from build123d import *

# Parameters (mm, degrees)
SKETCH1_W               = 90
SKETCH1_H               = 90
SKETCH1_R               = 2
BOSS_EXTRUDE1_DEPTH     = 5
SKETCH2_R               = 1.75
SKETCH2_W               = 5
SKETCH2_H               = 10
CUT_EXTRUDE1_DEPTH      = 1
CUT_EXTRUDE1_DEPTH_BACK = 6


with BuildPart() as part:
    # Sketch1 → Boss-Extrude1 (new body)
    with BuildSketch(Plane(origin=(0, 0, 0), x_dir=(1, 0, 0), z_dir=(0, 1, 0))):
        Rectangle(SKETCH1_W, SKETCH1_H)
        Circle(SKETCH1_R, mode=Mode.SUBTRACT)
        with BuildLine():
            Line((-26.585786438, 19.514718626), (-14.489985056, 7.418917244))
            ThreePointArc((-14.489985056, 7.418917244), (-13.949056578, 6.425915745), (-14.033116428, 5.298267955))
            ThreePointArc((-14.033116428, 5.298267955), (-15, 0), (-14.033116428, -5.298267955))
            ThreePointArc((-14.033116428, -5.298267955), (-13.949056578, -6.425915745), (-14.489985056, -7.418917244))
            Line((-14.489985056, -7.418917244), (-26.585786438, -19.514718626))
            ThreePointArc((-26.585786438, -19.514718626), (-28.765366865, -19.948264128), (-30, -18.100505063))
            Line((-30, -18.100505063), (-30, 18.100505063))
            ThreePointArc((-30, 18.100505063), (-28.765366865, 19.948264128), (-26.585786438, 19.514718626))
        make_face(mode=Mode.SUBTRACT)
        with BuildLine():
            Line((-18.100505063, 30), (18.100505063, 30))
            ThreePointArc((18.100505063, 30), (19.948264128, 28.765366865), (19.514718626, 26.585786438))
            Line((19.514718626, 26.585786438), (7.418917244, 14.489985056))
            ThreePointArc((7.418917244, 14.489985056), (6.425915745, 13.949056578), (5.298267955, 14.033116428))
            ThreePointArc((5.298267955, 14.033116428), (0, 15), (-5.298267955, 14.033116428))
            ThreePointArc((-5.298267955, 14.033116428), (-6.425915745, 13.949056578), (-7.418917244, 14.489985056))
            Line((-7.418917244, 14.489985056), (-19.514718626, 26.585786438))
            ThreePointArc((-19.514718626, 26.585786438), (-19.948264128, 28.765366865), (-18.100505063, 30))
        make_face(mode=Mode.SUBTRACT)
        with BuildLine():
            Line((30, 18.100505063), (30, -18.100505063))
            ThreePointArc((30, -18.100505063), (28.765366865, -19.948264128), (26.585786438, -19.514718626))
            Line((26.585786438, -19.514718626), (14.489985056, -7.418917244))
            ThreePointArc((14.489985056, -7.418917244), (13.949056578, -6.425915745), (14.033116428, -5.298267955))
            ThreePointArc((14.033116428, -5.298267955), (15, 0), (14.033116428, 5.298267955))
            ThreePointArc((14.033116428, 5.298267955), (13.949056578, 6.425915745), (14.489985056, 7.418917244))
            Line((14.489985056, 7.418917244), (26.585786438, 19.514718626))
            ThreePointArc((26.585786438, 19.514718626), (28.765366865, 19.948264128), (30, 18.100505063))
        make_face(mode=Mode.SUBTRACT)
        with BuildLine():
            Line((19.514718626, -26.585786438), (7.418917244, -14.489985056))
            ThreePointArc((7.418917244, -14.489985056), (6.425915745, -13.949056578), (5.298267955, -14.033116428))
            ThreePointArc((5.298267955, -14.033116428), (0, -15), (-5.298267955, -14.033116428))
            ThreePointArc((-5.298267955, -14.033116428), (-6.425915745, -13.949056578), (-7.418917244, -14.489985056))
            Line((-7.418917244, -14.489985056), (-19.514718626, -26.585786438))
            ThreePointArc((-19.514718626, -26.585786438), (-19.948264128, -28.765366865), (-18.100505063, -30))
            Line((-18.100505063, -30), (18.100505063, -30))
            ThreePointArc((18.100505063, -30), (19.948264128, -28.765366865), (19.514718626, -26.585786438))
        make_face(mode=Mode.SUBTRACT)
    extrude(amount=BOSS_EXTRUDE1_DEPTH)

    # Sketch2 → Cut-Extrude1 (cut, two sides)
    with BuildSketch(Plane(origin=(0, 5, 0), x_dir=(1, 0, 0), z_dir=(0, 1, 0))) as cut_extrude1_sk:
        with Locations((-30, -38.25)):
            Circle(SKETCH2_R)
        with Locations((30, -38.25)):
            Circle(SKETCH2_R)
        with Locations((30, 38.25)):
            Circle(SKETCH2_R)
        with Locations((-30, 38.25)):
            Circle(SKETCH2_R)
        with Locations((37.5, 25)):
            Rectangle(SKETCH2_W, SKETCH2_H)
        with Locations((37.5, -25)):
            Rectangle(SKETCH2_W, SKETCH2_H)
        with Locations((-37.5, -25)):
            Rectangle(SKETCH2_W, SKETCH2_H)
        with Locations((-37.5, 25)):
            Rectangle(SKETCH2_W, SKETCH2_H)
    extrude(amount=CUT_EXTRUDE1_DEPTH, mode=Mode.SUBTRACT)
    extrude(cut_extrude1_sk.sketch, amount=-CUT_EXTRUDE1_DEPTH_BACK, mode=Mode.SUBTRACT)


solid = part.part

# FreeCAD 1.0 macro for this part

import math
import FreeCAD as App
import Part
import Sketcher

V = App.Vector

doc = App.newDocument("Part")
body = doc.addObject("PartDesign::Body", "Body")

# Sketch on XZ plane
sketch1 = body.newObject("Sketcher::SketchObject", "Sketch")
sketch1.AttachmentSupport = (doc.getObject("XZ_Plane"), [""])
sketch1.MapMode = "FlatFace"
sketch1.addGeometry([
    Part.LineSegment(V(-45, -45, 0), V(-45, 45, 0)),  # 0
    Part.LineSegment(V(-45, 45, 0), V(45, 45, 0)),  # 1
    Part.LineSegment(V(45, 45, 0), V(45, -45, 0)),  # 2
    Part.LineSegment(V(45, -45, 0), V(-45, -45, 0)),  # 3
    Part.LineSegment(V(7.418917, 14.489985, 0), V(19.514719, 26.585786, 0)),  # 4
    Part.ArcOfCircle(Part.Circle(V(18.100505, 28, 0), V(0, 0, 1), 2), math.radians(-45), math.radians(90)),  # 5
    Part.LineSegment(V(18.100505, 30, 0), V(-18.100505, 30, 0)),  # 6
    Part.ArcOfCircle(Part.Circle(V(-18.100505, 28, 0), V(0, 0, 1), 2), math.radians(90), math.radians(225)),  # 7
    Part.LineSegment(V(-19.514719, 26.585786, 0), V(-7.418917, 14.489985, 0)),  # 8
    Part.ArcOfCircle(Part.Circle(V(-6.004704, 15.904199, 0), V(0, 0, 1), 2), math.radians(-135), math.radians(-69.315739)),  # 9
    Part.ArcOfCircle(Part.Circle(V(0, 0, 0), V(0, 0, 1), 15), math.radians(69.315739), math.radians(110.684261)),  # 10
    Part.ArcOfCircle(Part.Circle(V(6.004704, 15.904199, 0), V(0, 0, 1), 2), math.radians(-110.684261), math.radians(-45)),  # 11
    Part.ArcOfCircle(Part.Circle(V(-28, -18.100505, 0), V(0, 0, 1), 2), math.radians(180), math.radians(315)),  # 12
    Part.LineSegment(V(-26.585786, -19.514719, 0), V(-14.489985, -7.418917, 0)),  # 13
    Part.ArcOfCircle(Part.Circle(V(-15.904199, -6.004704, 0), V(0, 0, 1), 2), math.radians(-45), math.radians(20.684261)),  # 14
    Part.ArcOfCircle(Part.Circle(V(0, 0, 0), V(0, 0, 1), 15), math.radians(159.315739), math.radians(200.684261)),  # 15
    Part.ArcOfCircle(Part.Circle(V(-15.904199, 6.004704, 0), V(0, 0, 1), 2), math.radians(-20.684261), math.radians(45)),  # 16
    Part.LineSegment(V(-14.489985, 7.418917, 0), V(-26.585786, 19.514719, 0)),  # 17
    Part.ArcOfCircle(Part.Circle(V(-28, 18.100505, 0), V(0, 0, 1), 2), math.radians(45), math.radians(180)),  # 18
    Part.LineSegment(V(-30, 18.100505, 0), V(-30, -18.100505, 0)),  # 19
    Part.Circle(V(0, 0, 0), V(0, 0, 1), 2),  # 20
    Part.ArcOfCircle(Part.Circle(V(28, -18.100505, 0), V(0, 0, 1), 2), math.radians(-135), math.radians(0)),  # 21
    Part.LineSegment(V(30, -18.100505, 0), V(30, 18.100505, 0)),  # 22
    Part.ArcOfCircle(Part.Circle(V(28, 18.100505, 0), V(0, 0, 1), 2), math.radians(0), math.radians(135)),  # 23
    Part.LineSegment(V(26.585786, 19.514719, 0), V(14.489985, 7.418917, 0)),  # 24
    Part.ArcOfCircle(Part.Circle(V(15.904199, 6.004704, 0), V(0, 0, 1), 2), math.radians(135), math.radians(200.684261)),  # 25
    Part.ArcOfCircle(Part.Circle(V(0, 0, 0), V(0, 0, 1), 15), math.radians(-20.684261), math.radians(20.684261)),  # 26
    Part.ArcOfCircle(Part.Circle(V(15.904199, -6.004704, 0), V(0, 0, 1), 2), math.radians(159.315739), math.radians(225)),  # 27
    Part.LineSegment(V(14.489985, -7.418917, 0), V(26.585786, -19.514719, 0)),  # 28
    Part.ArcOfCircle(Part.Circle(V(-18.100505, -28, 0), V(0, 0, 1), 2), math.radians(135), math.radians(270)),  # 29
    Part.LineSegment(V(-18.100505, -30, 0), V(18.100505, -30, 0)),  # 30
    Part.ArcOfCircle(Part.Circle(V(18.100505, -28, 0), V(0, 0, 1), 2), math.radians(-90), math.radians(45)),  # 31
    Part.LineSegment(V(19.514719, -26.585786, 0), V(7.418917, -14.489985, 0)),  # 32
    Part.ArcOfCircle(Part.Circle(V(6.004704, -15.904199, 0), V(0, 0, 1), 2), math.radians(45), math.radians(110.684261)),  # 33
    Part.ArcOfCircle(Part.Circle(V(0, 0, 0), V(0, 0, 1), 15), math.radians(-110.684261), math.radians(-69.315739)),  # 34
    Part.ArcOfCircle(Part.Circle(V(-6.004704, -15.904199, 0), V(0, 0, 1), 2), math.radians(69.315739), math.radians(135)),  # 35
    Part.LineSegment(V(-7.418917, -14.489985, 0), V(-19.514719, -26.585786, 0)),  # 36
], False)
sketch1.addConstraint([
    Sketcher.Constraint("Coincident", 0, 2, 1, 1),
    Sketcher.Constraint("Coincident", 1, 2, 2, 1),
    Sketcher.Constraint("Coincident", 2, 2, 3, 1),
    Sketcher.Constraint("Coincident", 3, 2, 0, 1),
    Sketcher.Constraint("Tangent", 4, 2, 5, 1),
    Sketcher.Constraint("Tangent", 5, 2, 6, 1),
    Sketcher.Constraint("Tangent", 6, 2, 7, 1),
    Sketcher.Constraint("Tangent", 7, 2, 8, 1),
    Sketcher.Constraint("Tangent", 8, 2, 9, 1),
    Sketcher.Constraint("Tangent", 9, 2, 10, 2),
    Sketcher.Constraint("Tangent", 10, 1, 11, 1),
    Sketcher.Constraint("Tangent", 11, 2, 4, 1),
    Sketcher.Constraint("Tangent", 12, 2, 13, 1),
    Sketcher.Constraint("Tangent", 13, 2, 14, 1),
    Sketcher.Constraint("Tangent", 14, 2, 15, 2),
    Sketcher.Constraint("Tangent", 15, 1, 16, 1),
    Sketcher.Constraint("Tangent", 16, 2, 17, 1),
    Sketcher.Constraint("Tangent", 17, 2, 18, 1),
    Sketcher.Constraint("Tangent", 18, 2, 19, 1),
    Sketcher.Constraint("Tangent", 19, 2, 12, 1),
    Sketcher.Constraint("Tangent", 21, 2, 22, 1),
    Sketcher.Constraint("Tangent", 22, 2, 23, 1),
    Sketcher.Constraint("Tangent", 23, 2, 24, 1),
    Sketcher.Constraint("Tangent", 24, 2, 25, 1),
    Sketcher.Constraint("Tangent", 25, 2, 26, 2),
    Sketcher.Constraint("Tangent", 26, 1, 27, 1),
    Sketcher.Constraint("Tangent", 27, 2, 28, 1),
    Sketcher.Constraint("Tangent", 28, 2, 21, 1),
    Sketcher.Constraint("Tangent", 29, 2, 30, 1),
    Sketcher.Constraint("Tangent", 30, 2, 31, 1),
    Sketcher.Constraint("Tangent", 31, 2, 32, 1),
    Sketcher.Constraint("Tangent", 32, 2, 33, 1),
    Sketcher.Constraint("Tangent", 33, 2, 34, 2),
    Sketcher.Constraint("Tangent", 34, 1, 35, 1),
    Sketcher.Constraint("Tangent", 35, 2, 36, 1),
    Sketcher.Constraint("Tangent", 36, 2, 29, 1),
    Sketcher.Constraint("Vertical", 0),
    Sketcher.Constraint("Horizontal", 1),
    Sketcher.Constraint("Vertical", 2),
    Sketcher.Constraint("Horizontal", 3),
    Sketcher.Constraint("Horizontal", 6),
    Sketcher.Constraint("Vertical", 19),
    Sketcher.Constraint("Vertical", 22),
    Sketcher.Constraint("Horizontal", 30),
    Sketcher.Constraint("Coincident", 10, 3, -1, 1),
    Sketcher.Constraint("Coincident", 15, 3, -1, 1),
    Sketcher.Constraint("Coincident", 20, 3, -1, 1),
    Sketcher.Constraint("Coincident", 26, 3, -1, 1),
    Sketcher.Constraint("Coincident", 34, 3, -1, 1),
    Sketcher.Constraint("Equal", 5, 7),
    Sketcher.Constraint("Equal", 7, 9),
    Sketcher.Constraint("Equal", 9, 11),
    Sketcher.Constraint("Equal", 11, 12),
    Sketcher.Constraint("Equal", 12, 14),
    Sketcher.Constraint("Equal", 10, 15),
    Sketcher.Constraint("Equal", 14, 16),
    Sketcher.Constraint("Equal", 16, 18),
    Sketcher.Constraint("Equal", 18, 20),
    Sketcher.Constraint("Equal", 20, 21),
    Sketcher.Constraint("Equal", 21, 23),
    Sketcher.Constraint("Equal", 23, 25),
    Sketcher.Constraint("Equal", 15, 26),
    Sketcher.Constraint("Equal", 25, 27),
    Sketcher.Constraint("Equal", 27, 29),
    Sketcher.Constraint("Equal", 29, 31),
    Sketcher.Constraint("Equal", 31, 33),
    Sketcher.Constraint("Equal", 26, 34),
    Sketcher.Constraint("Equal", 33, 35),
    Sketcher.Constraint("Symmetric", 18, 3, 21, 3, -1, 1),
    Sketcher.Constraint("Symmetric", 5, 3, 29, 3, -1, 1),
    Sketcher.Constraint("Symmetric", 0, 2, 2, 2, -1, 1),
    Sketcher.Constraint("Symmetric", 12, 2, 23, 2, -1, 1),
    Sketcher.Constraint("Symmetric", 7, 2, 31, 2, -1, 1),
    Sketcher.Constraint("Symmetric", 4, 2, 7, 2, -2),
    Sketcher.Constraint("Symmetric", 17, 2, 23, 2, -2),
    Sketcher.Constraint("Perpendicular", 4, 8),
    Sketcher.Constraint("Perpendicular", 8, 13),
    Sketcher.Constraint("Perpendicular", 24, 28),
    Sketcher.Constraint("Perpendicular", 32, 36),
    Sketcher.Constraint("Equal", 3, 0),
    Sketcher.Constraint("Equal", 30, 19),
    Sketcher.Constraint("Equal", 8, 13),
    Sketcher.Constraint("Diameter", 20, 4.0),
    Sketcher.Constraint("Radius", 10, 15.0),
    Sketcher.Constraint("DistanceX", 1, 1, 1, 2, 90.0),
    Sketcher.Constraint("DistanceY", -1, 1, 5, 3, 28.0),
    Sketcher.Constraint("DistanceX", 6, 2, 6, 1, 36.20101),
])
pad1 = body.newObject("PartDesign::Pad", "Pad")
pad1.Profile = sketch1
pad1.Length = 5
pad1.Reversed = True

# Sketch on XZ plane
sketch2 = body.newObject("Sketcher::SketchObject", "Sketch001")
sketch2.AttachmentSupport = (doc.getObject("XZ_Plane"), [""])
sketch2.MapMode = "FlatFace"
sketch2.AttachmentOffset = App.Placement(V(0, 0, -5), App.Rotation())
sketch2.addGeometry([
    Part.Circle(V(-30, 38.25, 0), V(0, 0, 1), 1.75),  # 0
    Part.Circle(V(30, 38.25, 0), V(0, 0, 1), 1.75),  # 1
    Part.Circle(V(30, -38.25, 0), V(0, 0, 1), 1.75),  # 2
    Part.Circle(V(-30, -38.25, 0), V(0, 0, 1), 1.75),  # 3
    Part.LineSegment(V(35, -30, 0), V(35, -20, 0)),  # 4
    Part.LineSegment(V(35, -20, 0), V(40, -20, 0)),  # 5
    Part.LineSegment(V(40, -20, 0), V(40, -30, 0)),  # 6
    Part.LineSegment(V(40, -30, 0), V(35, -30, 0)),  # 7
    Part.LineSegment(V(35, 20, 0), V(35, 30, 0)),  # 8
    Part.LineSegment(V(35, 30, 0), V(40, 30, 0)),  # 9
    Part.LineSegment(V(40, 30, 0), V(40, 20, 0)),  # 10
    Part.LineSegment(V(40, 20, 0), V(35, 20, 0)),  # 11
    Part.LineSegment(V(-40, 20, 0), V(-40, 30, 0)),  # 12
    Part.LineSegment(V(-40, 30, 0), V(-35, 30, 0)),  # 13
    Part.LineSegment(V(-35, 30, 0), V(-35, 20, 0)),  # 14
    Part.LineSegment(V(-35, 20, 0), V(-40, 20, 0)),  # 15
    Part.LineSegment(V(-40, -30, 0), V(-40, -20, 0)),  # 16
    Part.LineSegment(V(-40, -20, 0), V(-35, -20, 0)),  # 17
    Part.LineSegment(V(-35, -20, 0), V(-35, -30, 0)),  # 18
    Part.LineSegment(V(-35, -30, 0), V(-40, -30, 0)),  # 19
], False)
sketch2.addConstraint([
    Sketcher.Constraint("Coincident", 4, 2, 5, 1),
    Sketcher.Constraint("Coincident", 5, 2, 6, 1),
    Sketcher.Constraint("Coincident", 6, 2, 7, 1),
    Sketcher.Constraint("Coincident", 7, 2, 4, 1),
    Sketcher.Constraint("Coincident", 8, 2, 9, 1),
    Sketcher.Constraint("Coincident", 9, 2, 10, 1),
    Sketcher.Constraint("Coincident", 10, 2, 11, 1),
    Sketcher.Constraint("Coincident", 11, 2, 8, 1),
    Sketcher.Constraint("Coincident", 12, 2, 13, 1),
    Sketcher.Constraint("Coincident", 13, 2, 14, 1),
    Sketcher.Constraint("Coincident", 14, 2, 15, 1),
    Sketcher.Constraint("Coincident", 15, 2, 12, 1),
    Sketcher.Constraint("Coincident", 16, 2, 17, 1),
    Sketcher.Constraint("Coincident", 17, 2, 18, 1),
    Sketcher.Constraint("Coincident", 18, 2, 19, 1),
    Sketcher.Constraint("Coincident", 19, 2, 16, 1),
    Sketcher.Constraint("Vertical", 4),
    Sketcher.Constraint("Horizontal", 5),
    Sketcher.Constraint("Vertical", 6),
    Sketcher.Constraint("Horizontal", 7),
    Sketcher.Constraint("Vertical", 8),
    Sketcher.Constraint("Horizontal", 9),
    Sketcher.Constraint("Vertical", 10),
    Sketcher.Constraint("Horizontal", 11),
    Sketcher.Constraint("Vertical", 12),
    Sketcher.Constraint("Horizontal", 13),
    Sketcher.Constraint("Vertical", 14),
    Sketcher.Constraint("Horizontal", 15),
    Sketcher.Constraint("Vertical", 16),
    Sketcher.Constraint("Horizontal", 17),
    Sketcher.Constraint("Vertical", 18),
    Sketcher.Constraint("Horizontal", 19),
    Sketcher.Constraint("Equal", 0, 1),
    Sketcher.Constraint("Equal", 1, 2),
    Sketcher.Constraint("Equal", 2, 3),
    Sketcher.Constraint("Symmetric", 0, 3, 2, 3, -1, 1),
    Sketcher.Constraint("Symmetric", 1, 3, 3, 3, -1, 1),
    Sketcher.Constraint("Symmetric", 6, 2, 12, 2, -1, 1),
    Sketcher.Constraint("Symmetric", 4, 2, 14, 2, -1, 1),
    Sketcher.Constraint("Symmetric", 10, 2, 16, 2, -1, 1),
    Sketcher.Constraint("Symmetric", 8, 2, 18, 2, -1, 1),
    Sketcher.Constraint("Symmetric", 0, 3, 1, 3, -2),
    Sketcher.Constraint("Symmetric", 9, 2, 12, 2, -2),
    Sketcher.Constraint("Symmetric", 11, 2, 14, 2, -2),
    Sketcher.Constraint("Diameter", 0, 3.5),
    Sketcher.Constraint("DistanceX", 5, 1, 5, 2, 5.0),
    Sketcher.Constraint("DistanceY", 4, 1, 4, 2, 10.0),
    Sketcher.Constraint("DistanceX", 0, 3, -1, 1, 30.0),
    Sketcher.Constraint("DistanceX", -1, 1, 4, 2, 35.0),
    Sketcher.Constraint("DistanceY", 4, 2, -1, 1, 20.0),
    Sketcher.Constraint("DistanceY", 2, 3, 1, 3, 76.5),
])
pocket1 = body.newObject("PartDesign::Pocket", "Pocket")
pocket1.Profile = sketch2
pocket1.Type = "ThroughAll"
pocket1.Midplane = True

doc.recompute()
